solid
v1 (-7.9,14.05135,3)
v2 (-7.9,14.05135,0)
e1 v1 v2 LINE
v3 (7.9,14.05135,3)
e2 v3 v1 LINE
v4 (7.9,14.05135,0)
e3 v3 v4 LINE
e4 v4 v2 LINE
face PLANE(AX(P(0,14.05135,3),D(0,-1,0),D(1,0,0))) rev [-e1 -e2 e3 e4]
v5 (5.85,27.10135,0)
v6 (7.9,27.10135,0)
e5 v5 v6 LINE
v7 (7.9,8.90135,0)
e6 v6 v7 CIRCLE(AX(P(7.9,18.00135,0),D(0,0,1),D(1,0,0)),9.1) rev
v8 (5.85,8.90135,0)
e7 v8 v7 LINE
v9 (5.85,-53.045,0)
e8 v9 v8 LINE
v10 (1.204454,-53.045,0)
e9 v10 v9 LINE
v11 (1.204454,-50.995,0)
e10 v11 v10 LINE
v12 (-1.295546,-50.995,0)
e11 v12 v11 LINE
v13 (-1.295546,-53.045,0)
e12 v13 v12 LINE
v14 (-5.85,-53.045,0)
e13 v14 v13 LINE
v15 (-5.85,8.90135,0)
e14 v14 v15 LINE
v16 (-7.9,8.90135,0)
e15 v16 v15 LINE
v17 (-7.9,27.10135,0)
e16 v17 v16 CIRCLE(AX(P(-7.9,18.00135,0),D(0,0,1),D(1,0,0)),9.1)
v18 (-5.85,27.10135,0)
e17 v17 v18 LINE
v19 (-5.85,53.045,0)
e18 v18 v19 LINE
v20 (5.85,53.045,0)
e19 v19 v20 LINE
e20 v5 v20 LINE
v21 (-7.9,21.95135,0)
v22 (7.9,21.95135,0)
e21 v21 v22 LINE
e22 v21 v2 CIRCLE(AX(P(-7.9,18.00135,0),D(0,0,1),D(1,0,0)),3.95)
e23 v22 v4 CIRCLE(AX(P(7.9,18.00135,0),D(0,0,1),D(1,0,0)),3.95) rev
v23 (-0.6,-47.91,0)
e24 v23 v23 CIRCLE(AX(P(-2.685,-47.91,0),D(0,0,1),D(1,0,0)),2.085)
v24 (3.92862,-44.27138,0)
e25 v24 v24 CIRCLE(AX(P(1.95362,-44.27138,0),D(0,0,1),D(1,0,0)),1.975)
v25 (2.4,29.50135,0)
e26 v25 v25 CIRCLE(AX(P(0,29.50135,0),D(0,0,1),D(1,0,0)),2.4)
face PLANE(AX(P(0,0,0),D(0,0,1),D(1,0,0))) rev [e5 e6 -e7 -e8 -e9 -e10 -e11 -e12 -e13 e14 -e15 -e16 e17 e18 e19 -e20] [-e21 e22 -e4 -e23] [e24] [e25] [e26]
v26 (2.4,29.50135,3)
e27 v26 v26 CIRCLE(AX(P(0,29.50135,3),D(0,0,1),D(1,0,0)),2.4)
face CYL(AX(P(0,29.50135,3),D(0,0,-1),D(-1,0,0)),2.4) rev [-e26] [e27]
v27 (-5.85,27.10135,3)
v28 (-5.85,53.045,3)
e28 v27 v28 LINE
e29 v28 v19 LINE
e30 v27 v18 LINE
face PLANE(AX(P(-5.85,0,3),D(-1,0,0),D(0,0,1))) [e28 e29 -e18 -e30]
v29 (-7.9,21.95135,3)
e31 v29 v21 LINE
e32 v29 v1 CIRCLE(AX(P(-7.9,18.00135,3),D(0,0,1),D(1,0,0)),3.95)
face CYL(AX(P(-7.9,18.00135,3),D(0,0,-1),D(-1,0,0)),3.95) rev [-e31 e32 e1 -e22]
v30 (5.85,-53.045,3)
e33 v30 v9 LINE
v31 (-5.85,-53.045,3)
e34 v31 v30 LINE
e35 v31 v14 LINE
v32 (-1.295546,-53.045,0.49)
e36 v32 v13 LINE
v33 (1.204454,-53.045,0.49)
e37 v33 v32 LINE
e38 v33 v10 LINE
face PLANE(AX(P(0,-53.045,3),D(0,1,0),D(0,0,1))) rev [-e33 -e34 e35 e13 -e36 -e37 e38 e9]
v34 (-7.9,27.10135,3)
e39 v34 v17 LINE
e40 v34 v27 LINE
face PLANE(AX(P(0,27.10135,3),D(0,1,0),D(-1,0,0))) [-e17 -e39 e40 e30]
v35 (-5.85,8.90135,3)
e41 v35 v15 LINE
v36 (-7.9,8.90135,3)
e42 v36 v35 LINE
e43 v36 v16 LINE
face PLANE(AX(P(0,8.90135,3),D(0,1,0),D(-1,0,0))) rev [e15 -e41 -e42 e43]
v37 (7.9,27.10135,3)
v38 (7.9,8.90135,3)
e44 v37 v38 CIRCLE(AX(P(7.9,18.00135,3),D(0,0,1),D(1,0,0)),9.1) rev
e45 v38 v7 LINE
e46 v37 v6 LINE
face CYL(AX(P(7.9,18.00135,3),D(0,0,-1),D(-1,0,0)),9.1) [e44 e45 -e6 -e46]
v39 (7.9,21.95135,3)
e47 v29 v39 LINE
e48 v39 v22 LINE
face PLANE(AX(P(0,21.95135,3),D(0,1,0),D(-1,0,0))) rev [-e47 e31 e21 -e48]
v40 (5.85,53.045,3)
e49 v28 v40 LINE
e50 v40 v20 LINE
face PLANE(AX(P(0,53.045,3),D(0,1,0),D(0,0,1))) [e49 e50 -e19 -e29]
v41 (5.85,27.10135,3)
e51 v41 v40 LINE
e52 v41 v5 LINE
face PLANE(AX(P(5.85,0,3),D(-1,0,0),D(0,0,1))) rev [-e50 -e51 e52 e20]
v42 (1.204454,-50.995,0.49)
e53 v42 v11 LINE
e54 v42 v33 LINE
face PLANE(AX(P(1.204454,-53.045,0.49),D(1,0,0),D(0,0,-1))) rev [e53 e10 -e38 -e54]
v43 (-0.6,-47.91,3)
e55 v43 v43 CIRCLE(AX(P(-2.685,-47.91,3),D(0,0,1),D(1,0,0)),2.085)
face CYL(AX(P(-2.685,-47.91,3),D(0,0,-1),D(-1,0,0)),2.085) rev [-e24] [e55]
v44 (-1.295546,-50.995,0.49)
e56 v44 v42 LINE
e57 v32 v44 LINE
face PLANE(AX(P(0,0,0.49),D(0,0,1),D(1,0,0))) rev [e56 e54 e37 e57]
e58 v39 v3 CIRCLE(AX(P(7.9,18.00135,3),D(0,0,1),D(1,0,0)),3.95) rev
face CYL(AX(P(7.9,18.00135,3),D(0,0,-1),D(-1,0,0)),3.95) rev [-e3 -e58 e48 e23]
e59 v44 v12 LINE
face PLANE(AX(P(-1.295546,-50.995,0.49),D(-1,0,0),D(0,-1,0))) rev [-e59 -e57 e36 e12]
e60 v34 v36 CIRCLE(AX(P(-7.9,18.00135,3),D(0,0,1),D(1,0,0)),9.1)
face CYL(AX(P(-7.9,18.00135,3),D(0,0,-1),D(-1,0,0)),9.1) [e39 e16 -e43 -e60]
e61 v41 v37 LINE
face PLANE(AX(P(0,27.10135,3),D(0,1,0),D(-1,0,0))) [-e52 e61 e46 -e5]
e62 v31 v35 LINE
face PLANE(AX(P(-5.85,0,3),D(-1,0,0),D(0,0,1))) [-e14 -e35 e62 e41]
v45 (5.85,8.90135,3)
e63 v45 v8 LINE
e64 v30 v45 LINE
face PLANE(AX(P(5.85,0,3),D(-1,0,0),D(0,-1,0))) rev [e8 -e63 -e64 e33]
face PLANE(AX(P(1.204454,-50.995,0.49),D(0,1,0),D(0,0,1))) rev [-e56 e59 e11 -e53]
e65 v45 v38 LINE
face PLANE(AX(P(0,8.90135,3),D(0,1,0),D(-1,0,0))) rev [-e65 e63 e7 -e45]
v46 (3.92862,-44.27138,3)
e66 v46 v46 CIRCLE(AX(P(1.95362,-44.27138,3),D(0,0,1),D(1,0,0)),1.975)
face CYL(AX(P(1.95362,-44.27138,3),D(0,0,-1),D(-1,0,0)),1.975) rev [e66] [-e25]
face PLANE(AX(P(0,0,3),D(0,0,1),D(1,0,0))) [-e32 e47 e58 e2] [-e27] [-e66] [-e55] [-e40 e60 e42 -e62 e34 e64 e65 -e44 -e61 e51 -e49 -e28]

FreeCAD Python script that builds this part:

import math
import FreeCAD as App
import Part
import Sketcher
from FreeCAD import Vector
Q = App.Units.Quantity


def add_polygon(sketch, points):
    """Adds a closed chain of lines whose ends are joined by coincident constraints."""
    first, n = sketch.GeometryCount, len(points)
    for a, b in zip(points, points[1:] + points[:1]):
        sketch.addGeometry(Part.LineSegment(App.Vector(*a, 0), App.Vector(*b, 0)), False)
    for i in range(n):
        sketch.addConstraint(Sketcher.Constraint("Coincident", first + i, 2, first + (i + 1) % n, 1))

doc = App.newDocument("Part")
params = doc.addObject("Spreadsheet::Sheet", "Params")
for row, (alias, value) in enumerate([
    ("sketch1_diameter", "4.8 mm"),
    ("sketch1_radius", "9.1 mm"),
    ("sketch1_diameter2", "4.17 mm"),
    ("sketch1_diameter3", "3.95 mm"),
    ("sketch1_radius2", "3.95 mm"),
    ("pad1_length", "3 mm"),
    ("sketch2_width", "2.5 mm"),
    ("sketch2_height", "2.05 mm"),
    ("pocket1_length", "0.49 mm"),
], start=1):
    params.set(f"A{row}", alias)
    params.set(f"B{row}", "=" + value)
    params.setAlias(f"B{row}", alias)

body = doc.addObject("PartDesign::Body", "Body")

# Sketch on XY plane
sketch1 = body.newObject("Sketcher::SketchObject", "Sketch")
sketch1.AttachmentSupport = (doc.getObject("XY_Plane"), [""])
sketch1.MapMode = "FlatFace"
sketch1.addGeometry(Part.LineSegment(Vector(-5.85, 53.045, 0), Vector(-5.85, 27.10135, 0)), False)
sketch1.addGeometry(Part.LineSegment(Vector(-5.85, 27.10135, 0), Vector(-7.9, 27.10135, 0)), False)
sketch1.addGeometry(Part.ArcOfCircle(Part.Circle(Vector(-7.9, 18.00135, 0), Vector(0, 0, 1), 9.1), math.radians(90), math.radians(270)), False)
sketch1.addGeometry(Part.LineSegment(Vector(-7.9, 8.90135, 0), Vector(-5.85, 8.90135, 0)), False)
sketch1.addGeometry(Part.LineSegment(Vector(-5.85, 8.90135, 0), Vector(-5.85, -53.045, 0)), False)
sketch1.addGeometry(Part.LineSegment(Vector(-5.85, -53.045, 0), Vector(5.85, -53.045, 0)), False)
sketch1.addGeometry(Part.LineSegment(Vector(5.85, -53.045, 0), Vector(5.85, 8.90135, 0)), False)
sketch1.addGeometry(Part.LineSegment(Vector(5.85, 8.90135, 0), Vector(7.9, 8.90135, 0)), False)
sketch1.addGeometry(Part.ArcOfCircle(Part.Circle(Vector(7.9, 18.00135, 0), Vector(0, 0, 1), 9.1), math.radians(-90), math.radians(90)), False)
sketch1.addGeometry(Part.LineSegment(Vector(7.9, 27.10135, 0), Vector(5.85, 27.10135, 0)), False)
sketch1.addGeometry(Part.LineSegment(Vector(5.85, 27.10135, 0), Vector(5.85, 53.045, 0)), False)
sketch1.addGeometry(Part.LineSegment(Vector(5.85, 53.045, 0), Vector(-5.85, 53.045, 0)), False)
sketch1.addGeometry(Part.Circle(Vector(-2.685, -47.91, 0), Vector(0, 0, 1), 2.085), False)
sketch1.addGeometry(Part.Circle(Vector(1.95362, -44.27138, 0), Vector(0, 0, 1), 1.975), False)
sketch1.addGeometry(Part.ArcOfCircle(Part.Circle(Vector(-7.9, 18.00135, 0), Vector(0, 0, 1), 3.95), math.radians(90), math.radians(270)), False)
sketch1.addGeometry(Part.LineSegment(Vector(-7.9, 21.95135, 0), Vector(7.9, 21.95135, 0)), False)
sketch1.addGeometry(Part.ArcOfCircle(Part.Circle(Vector(7.9, 18.00135, 0), Vector(0, 0, 1), 3.95), math.radians(-90), math.radians(90)), False)
sketch1.addGeometry(Part.LineSegment(Vector(7.9, 14.05135, 0), Vector(-7.9, 14.05135, 0)), False)
sketch1.addGeometry(Part.Circle(Vector(0, 29.50135, 0), Vector(0, 0, 1), 2.4), False)
sketch1.addConstraint(Sketcher.Constraint("Coincident", 0, 2, 1, 1))
sketch1.addConstraint(Sketcher.Constraint("Tangent", 1, 2, 2, 1))
sketch1.addConstraint(Sketcher.Constraint("Tangent", 2, 2, 3, 1))
sketch1.addConstraint(Sketcher.Constraint("Coincident", 3, 2, 4, 1))
sketch1.addConstraint(Sketcher.Constraint("Coincident", 4, 2, 5, 1))
sketch1.addConstraint(Sketcher.Constraint("Coincident", 5, 2, 6, 1))
sketch1.addConstraint(Sketcher.Constraint("Coincident", 6, 2, 7, 1))
sketch1.addConstraint(Sketcher.Constraint("Tangent", 7, 2, 8, 1))
sketch1.addConstraint(Sketcher.Constraint("Tangent", 8, 2, 9, 1))
sketch1.addConstraint(Sketcher.Constraint("Coincident", 9, 2, 10, 1))
sketch1.addConstraint(Sketcher.Constraint("Coincident", 10, 2, 11, 1))
sketch1.addConstraint(Sketcher.Constraint("Coincident", 11, 2, 0, 1))
sketch1.addConstraint(Sketcher.Constraint("Tangent", 14, 1, 15, 1))
sketch1.addConstraint(Sketcher.Constraint("Tangent", 15, 2, 16, 2))
sketch1.addConstraint(Sketcher.Constraint("Tangent", 16, 1, 17, 1))
sketch1.addConstraint(Sketcher.Constraint("Tangent", 17, 2, 14, 2))
sketch1.addConstraint(Sketcher.Constraint("Vertical", 0))
sketch1.addConstraint(Sketcher.Constraint("Horizontal", 1))
sketch1.addConstraint(Sketcher.Constraint("Horizontal", 3))
sketch1.addConstraint(Sketcher.Constraint("Vertical", 4))
sketch1.addConstraint(Sketcher.Constraint("Horizontal", 5))
sketch1.addConstraint(Sketcher.Constraint("Vertical", 6))
sketch1.addConstraint(Sketcher.Constraint("Horizontal", 7))
sketch1.addConstraint(Sketcher.Constraint("Horizontal", 9))
sketch1.addConstraint(Sketcher.Constraint("Vertical", 10))
sketch1.addConstraint(Sketcher.Constraint("Horizontal", 11))
sketch1.addConstraint(Sketcher.Constraint("Horizontal", 15))
sketch1.addConstraint(Sketcher.Constraint("Horizontal", 17))
sketch1.addConstraint(Sketcher.Constraint("Coincident", 14, 3, 2, 3))
sketch1.addConstraint(Sketcher.Constraint("Coincident", 16, 3, 8, 3))
sketch1.addConstraint(Sketcher.Constraint("Equal", 2, 8))
sketch1.addConstraint(Sketcher.Constraint("Symmetric", 4, 2, 10, 2, -1, 1))
sketch1.addConstraint(Sketcher.Constraint("PointOnObject", 18, 3, -2))
sketch1.addConstraint(Sketcher.Constraint("Vertical", 0, 2, 3, 2))
sketch1.addConstraint(Sketcher.Constraint("Vertical", 6, 2, 9, 2))
sketch1.addConstraint(Sketcher.Constraint("Equal", 3, 7))
sketch1.addConstraint(Sketcher.Constraint("Diameter", 18, Q("4.8 mm")))
sketch1.addConstraint(Sketcher.Constraint("Radius", 2, Q("9.1 mm")))
sketch1.addConstraint(Sketcher.Constraint("Diameter", 12, Q("4.17 mm")))
sketch1.addConstraint(Sketcher.Constraint("Diameter", 13, Q("3.95 mm")))
sketch1.addConstraint(Sketcher.Constraint("Radius", 14, Q("3.95 mm")))
sketch1.addConstraint(Sketcher.Constraint("DistanceX", 5, 1, 5, 2, Q("11.7 mm")))
sketch1.addConstraint(Sketcher.Constraint("DistanceX", 15, 1, 15, 2, Q("15.8 mm")))
sketch1.addConstraint(Sketcher.Constraint("DistanceY", 2, 3, 18, 3, Q("11.5 mm")))
sketch1.addConstraint(Sketcher.Constraint("DistanceY", 12, 3, -1, 1, Q("47.91 mm")))
sketch1.addConstraint(Sketcher.Constraint("DistanceX", 12, 3, -1, 1, Q("2.685 mm")))
sketch1.addConstraint(Sketcher.Constraint("DistanceY", 4, 2, -1, 1, Q("53.045 mm")))
sketch1.addConstraint(Sketcher.Constraint("DistanceY", 0, 2, 0, 1, Q("25.94365 mm")))
sketch1.addConstraint(Sketcher.Constraint("DistanceX", -1, 1, 13, 3, Q("1.95362 mm")))
sketch1.addConstraint(Sketcher.Constraint("DistanceY", 13, 3, -1, 1, Q("44.27138 mm")))
sketch1.setExpression("Constraints[36]", "Params.sketch1_diameter")
sketch1.setExpression("Constraints[37]", "Params.sketch1_radius")
sketch1.setExpression("Constraints[38]", "Params.sketch1_diameter2")
sketch1.setExpression("Constraints[39]", "Params.sketch1_diameter3")
sketch1.setExpression("Constraints[40]", "Params.sketch1_radius2")
pad1 = body.newObject("PartDesign::Pad", "Pad")
pad1.Profile = sketch1
pad1.setExpression("Length", "Params.pad1_length")

# Sketch on XY plane
sketch2 = body.newObject("Sketcher::SketchObject", "Sketch001")
sketch2.AttachmentSupport = (doc.getObject("XY_Plane"), [""])
sketch2.MapMode = "FlatFace"
add_polygon(sketch2, [(1.204454, -50.995), (1.204454, -53.045), (-1.295546, -53.045), (-1.295546, -50.995)])  # lines 0-3
sketch2.addConstraint(Sketcher.Constraint("Vertical", 0))
sketch2.addConstraint(Sketcher.Constraint("Horizontal", 1))
sketch2.addConstraint(Sketcher.Constraint("Vertical", 2))
sketch2.addConstraint(Sketcher.Constraint("Horizontal", 3))
sketch2.addConstraint(Sketcher.Constraint("DistanceX", 1, 2, 1, 1, Q("2.5 mm")))
sketch2.addConstraint(Sketcher.Constraint("DistanceY", 0, 2, 0, 1, Q("2.05 mm")))
sketch2.addConstraint(Sketcher.Constraint("DistanceY", 0, 2, -1, 1, Q("53.045 mm")))
sketch2.addConstraint(Sketcher.Constraint("DistanceX", -1, 1, 0, 2, Q("1.204454 mm")))
sketch2.setExpression("Constraints[8]", "Params.sketch2_width")
sketch2.setExpression("Constraints[9]", "Params.sketch2_height")
pocket1 = body.newObject("PartDesign::Pocket", "Pocket")
pocket1.Profile = sketch2
pocket1.setExpression("Length", "Params.pocket1_length")
pocket1.Reversed = True

doc.recompute()
